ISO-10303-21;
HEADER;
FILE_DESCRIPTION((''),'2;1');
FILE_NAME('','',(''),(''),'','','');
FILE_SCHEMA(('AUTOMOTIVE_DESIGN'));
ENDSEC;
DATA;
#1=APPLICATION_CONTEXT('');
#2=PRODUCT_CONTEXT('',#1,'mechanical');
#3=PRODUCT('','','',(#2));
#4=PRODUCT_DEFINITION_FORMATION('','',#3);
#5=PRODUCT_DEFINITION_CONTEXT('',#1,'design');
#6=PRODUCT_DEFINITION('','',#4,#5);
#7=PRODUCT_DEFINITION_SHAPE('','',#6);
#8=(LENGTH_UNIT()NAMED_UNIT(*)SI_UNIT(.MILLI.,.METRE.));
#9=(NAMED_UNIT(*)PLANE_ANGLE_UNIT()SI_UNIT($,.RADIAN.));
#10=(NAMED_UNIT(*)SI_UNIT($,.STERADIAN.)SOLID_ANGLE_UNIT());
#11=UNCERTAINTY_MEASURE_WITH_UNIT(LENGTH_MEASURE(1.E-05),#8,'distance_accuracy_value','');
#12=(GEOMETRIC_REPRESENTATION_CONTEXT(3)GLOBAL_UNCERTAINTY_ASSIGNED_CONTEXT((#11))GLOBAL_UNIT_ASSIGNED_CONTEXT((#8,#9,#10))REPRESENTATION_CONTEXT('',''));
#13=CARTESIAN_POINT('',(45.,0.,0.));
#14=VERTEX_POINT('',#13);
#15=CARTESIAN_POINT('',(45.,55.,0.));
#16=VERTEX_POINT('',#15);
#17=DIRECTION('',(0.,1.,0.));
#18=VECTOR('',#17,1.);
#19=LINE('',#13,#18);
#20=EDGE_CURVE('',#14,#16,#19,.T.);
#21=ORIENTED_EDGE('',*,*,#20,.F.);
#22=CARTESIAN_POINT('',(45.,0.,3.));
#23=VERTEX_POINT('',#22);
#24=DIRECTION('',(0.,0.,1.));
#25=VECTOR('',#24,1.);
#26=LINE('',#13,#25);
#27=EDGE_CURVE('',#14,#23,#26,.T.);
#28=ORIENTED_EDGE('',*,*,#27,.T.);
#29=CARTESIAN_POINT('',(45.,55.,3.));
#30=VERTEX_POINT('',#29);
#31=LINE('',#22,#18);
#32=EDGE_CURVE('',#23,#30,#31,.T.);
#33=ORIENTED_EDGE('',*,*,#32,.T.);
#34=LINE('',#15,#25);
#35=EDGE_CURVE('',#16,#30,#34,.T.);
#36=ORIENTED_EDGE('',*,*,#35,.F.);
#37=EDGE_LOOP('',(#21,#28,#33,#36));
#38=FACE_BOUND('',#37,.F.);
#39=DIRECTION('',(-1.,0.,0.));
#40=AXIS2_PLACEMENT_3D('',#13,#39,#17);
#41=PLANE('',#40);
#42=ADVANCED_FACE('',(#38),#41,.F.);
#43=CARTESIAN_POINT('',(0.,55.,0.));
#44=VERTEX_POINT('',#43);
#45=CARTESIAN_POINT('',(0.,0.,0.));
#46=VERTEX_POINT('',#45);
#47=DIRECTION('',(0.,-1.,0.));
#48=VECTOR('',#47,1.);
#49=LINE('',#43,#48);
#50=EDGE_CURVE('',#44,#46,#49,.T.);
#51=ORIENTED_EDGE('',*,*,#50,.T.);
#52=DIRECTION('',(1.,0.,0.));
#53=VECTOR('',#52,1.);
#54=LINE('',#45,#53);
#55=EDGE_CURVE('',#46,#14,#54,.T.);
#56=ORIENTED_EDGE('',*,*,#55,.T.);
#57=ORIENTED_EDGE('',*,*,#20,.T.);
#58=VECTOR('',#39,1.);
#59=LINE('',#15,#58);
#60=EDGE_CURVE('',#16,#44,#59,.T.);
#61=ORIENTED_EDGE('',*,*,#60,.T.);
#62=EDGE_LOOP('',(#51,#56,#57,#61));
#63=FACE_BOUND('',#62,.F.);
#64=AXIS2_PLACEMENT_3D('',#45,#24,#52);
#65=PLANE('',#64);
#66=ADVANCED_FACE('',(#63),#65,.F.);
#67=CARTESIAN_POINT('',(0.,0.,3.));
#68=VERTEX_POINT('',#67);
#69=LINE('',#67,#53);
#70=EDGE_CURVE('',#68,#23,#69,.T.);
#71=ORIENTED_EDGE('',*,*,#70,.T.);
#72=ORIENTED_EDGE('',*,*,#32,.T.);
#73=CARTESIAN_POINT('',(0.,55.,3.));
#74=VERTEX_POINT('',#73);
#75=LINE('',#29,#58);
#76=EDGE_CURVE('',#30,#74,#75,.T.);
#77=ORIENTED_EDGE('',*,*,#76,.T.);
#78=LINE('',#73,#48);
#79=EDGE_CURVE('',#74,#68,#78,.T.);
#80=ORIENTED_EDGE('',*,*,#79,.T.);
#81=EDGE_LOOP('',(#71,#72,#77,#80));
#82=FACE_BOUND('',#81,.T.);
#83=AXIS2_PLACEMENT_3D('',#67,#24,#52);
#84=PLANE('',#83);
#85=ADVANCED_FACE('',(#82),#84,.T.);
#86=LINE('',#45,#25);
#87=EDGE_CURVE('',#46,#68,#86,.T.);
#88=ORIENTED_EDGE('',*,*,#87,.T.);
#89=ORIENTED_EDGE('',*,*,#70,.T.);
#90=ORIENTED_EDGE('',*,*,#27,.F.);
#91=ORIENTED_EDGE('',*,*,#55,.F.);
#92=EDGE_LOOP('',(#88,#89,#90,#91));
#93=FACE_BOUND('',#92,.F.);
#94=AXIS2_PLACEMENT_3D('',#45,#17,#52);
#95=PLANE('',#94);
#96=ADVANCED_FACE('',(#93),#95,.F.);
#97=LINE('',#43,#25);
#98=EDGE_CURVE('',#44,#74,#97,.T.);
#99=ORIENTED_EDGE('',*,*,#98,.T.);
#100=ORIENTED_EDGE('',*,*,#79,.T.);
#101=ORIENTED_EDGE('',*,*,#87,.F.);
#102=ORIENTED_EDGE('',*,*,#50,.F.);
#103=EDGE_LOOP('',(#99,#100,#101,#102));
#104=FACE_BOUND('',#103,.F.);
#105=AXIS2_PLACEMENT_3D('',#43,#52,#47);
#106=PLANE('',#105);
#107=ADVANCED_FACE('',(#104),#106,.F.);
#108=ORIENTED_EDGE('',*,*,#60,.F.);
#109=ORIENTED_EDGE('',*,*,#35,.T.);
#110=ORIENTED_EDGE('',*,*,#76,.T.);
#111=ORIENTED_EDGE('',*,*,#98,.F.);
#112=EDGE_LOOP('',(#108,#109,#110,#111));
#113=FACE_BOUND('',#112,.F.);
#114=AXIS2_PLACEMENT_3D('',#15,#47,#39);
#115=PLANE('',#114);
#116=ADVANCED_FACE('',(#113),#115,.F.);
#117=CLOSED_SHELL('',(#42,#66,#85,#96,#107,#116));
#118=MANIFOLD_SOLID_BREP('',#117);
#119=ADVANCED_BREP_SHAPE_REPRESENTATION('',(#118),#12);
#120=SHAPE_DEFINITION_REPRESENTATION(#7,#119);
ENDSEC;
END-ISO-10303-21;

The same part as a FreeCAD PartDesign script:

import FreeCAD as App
import Part
import Sketcher
from FreeCAD import Vector

doc = App.newDocument("Part")
params = doc.addObject("Spreadsheet::Sheet", "Params")
for row, (alias, value) in enumerate([
    ("sketch1_width", "45 mm"),
    ("sketch1_height", "55 mm"),
    ("pad1_length", "3 mm"),
], start=1):
    params.set(f"A{row}", alias)
    params.set(f"B{row}", "=" + value)
    params.setAlias(f"B{row}", alias)

body = doc.addObject("PartDesign::Body", "Body")

sketch1 = body.newObject("Sketcher::SketchObject", "Sketch")
sketch1.AttachmentSupport = (doc.getObject("XY_Plane"), [""])
sketch1.MapMode = "FlatFace"
sketch1.addGeometry([
    Part.LineSegment(Vector(0, 55, 0), Vector(0, 0, 0)),
    Part.LineSegment(Vector(0, 0, 0), Vector(45, 0, 0)),
    Part.LineSegment(Vector(45, 0, 0), Vector(45, 55, 0)),
    Part.LineSegment(Vector(45, 55, 0), Vector(0, 55, 0)),
], False)
sketch1.addConstraint([
    Sketcher.Constraint("Coincident", 0, 2, 1, 1),
    Sketcher.Constraint("Coincident", 1, 2, 2, 1),
    Sketcher.Constraint("Coincident", 2, 2, 3, 1),
    Sketcher.Constraint("Coincident", 3, 2, 0, 1),
    Sketcher.Constraint("Vertical", 0),
    Sketcher.Constraint("Horizontal", 1),
    Sketcher.Constraint("Vertical", 2),
    Sketcher.Constraint("Horizontal", 3),
    Sketcher.Constraint("Coincident", 0, 2, -1, 1),
    Sketcher.Constraint("DistanceX", 1, 1, 1, 2, 45.0),
    Sketcher.Constraint("DistanceY", 0, 2, 0, 1, 55.0),
])
sketch1.setExpression("Constraints[9]", "Params.sketch1_width")
sketch1.setExpression("Constraints[10]", "Params.sketch1_height")
pad1 = body.newObject("PartDesign::Pad", "Pad")
pad1.Profile = sketch1
pad1.setExpression("Length", "Params.pad1_length")

doc.recompute()
